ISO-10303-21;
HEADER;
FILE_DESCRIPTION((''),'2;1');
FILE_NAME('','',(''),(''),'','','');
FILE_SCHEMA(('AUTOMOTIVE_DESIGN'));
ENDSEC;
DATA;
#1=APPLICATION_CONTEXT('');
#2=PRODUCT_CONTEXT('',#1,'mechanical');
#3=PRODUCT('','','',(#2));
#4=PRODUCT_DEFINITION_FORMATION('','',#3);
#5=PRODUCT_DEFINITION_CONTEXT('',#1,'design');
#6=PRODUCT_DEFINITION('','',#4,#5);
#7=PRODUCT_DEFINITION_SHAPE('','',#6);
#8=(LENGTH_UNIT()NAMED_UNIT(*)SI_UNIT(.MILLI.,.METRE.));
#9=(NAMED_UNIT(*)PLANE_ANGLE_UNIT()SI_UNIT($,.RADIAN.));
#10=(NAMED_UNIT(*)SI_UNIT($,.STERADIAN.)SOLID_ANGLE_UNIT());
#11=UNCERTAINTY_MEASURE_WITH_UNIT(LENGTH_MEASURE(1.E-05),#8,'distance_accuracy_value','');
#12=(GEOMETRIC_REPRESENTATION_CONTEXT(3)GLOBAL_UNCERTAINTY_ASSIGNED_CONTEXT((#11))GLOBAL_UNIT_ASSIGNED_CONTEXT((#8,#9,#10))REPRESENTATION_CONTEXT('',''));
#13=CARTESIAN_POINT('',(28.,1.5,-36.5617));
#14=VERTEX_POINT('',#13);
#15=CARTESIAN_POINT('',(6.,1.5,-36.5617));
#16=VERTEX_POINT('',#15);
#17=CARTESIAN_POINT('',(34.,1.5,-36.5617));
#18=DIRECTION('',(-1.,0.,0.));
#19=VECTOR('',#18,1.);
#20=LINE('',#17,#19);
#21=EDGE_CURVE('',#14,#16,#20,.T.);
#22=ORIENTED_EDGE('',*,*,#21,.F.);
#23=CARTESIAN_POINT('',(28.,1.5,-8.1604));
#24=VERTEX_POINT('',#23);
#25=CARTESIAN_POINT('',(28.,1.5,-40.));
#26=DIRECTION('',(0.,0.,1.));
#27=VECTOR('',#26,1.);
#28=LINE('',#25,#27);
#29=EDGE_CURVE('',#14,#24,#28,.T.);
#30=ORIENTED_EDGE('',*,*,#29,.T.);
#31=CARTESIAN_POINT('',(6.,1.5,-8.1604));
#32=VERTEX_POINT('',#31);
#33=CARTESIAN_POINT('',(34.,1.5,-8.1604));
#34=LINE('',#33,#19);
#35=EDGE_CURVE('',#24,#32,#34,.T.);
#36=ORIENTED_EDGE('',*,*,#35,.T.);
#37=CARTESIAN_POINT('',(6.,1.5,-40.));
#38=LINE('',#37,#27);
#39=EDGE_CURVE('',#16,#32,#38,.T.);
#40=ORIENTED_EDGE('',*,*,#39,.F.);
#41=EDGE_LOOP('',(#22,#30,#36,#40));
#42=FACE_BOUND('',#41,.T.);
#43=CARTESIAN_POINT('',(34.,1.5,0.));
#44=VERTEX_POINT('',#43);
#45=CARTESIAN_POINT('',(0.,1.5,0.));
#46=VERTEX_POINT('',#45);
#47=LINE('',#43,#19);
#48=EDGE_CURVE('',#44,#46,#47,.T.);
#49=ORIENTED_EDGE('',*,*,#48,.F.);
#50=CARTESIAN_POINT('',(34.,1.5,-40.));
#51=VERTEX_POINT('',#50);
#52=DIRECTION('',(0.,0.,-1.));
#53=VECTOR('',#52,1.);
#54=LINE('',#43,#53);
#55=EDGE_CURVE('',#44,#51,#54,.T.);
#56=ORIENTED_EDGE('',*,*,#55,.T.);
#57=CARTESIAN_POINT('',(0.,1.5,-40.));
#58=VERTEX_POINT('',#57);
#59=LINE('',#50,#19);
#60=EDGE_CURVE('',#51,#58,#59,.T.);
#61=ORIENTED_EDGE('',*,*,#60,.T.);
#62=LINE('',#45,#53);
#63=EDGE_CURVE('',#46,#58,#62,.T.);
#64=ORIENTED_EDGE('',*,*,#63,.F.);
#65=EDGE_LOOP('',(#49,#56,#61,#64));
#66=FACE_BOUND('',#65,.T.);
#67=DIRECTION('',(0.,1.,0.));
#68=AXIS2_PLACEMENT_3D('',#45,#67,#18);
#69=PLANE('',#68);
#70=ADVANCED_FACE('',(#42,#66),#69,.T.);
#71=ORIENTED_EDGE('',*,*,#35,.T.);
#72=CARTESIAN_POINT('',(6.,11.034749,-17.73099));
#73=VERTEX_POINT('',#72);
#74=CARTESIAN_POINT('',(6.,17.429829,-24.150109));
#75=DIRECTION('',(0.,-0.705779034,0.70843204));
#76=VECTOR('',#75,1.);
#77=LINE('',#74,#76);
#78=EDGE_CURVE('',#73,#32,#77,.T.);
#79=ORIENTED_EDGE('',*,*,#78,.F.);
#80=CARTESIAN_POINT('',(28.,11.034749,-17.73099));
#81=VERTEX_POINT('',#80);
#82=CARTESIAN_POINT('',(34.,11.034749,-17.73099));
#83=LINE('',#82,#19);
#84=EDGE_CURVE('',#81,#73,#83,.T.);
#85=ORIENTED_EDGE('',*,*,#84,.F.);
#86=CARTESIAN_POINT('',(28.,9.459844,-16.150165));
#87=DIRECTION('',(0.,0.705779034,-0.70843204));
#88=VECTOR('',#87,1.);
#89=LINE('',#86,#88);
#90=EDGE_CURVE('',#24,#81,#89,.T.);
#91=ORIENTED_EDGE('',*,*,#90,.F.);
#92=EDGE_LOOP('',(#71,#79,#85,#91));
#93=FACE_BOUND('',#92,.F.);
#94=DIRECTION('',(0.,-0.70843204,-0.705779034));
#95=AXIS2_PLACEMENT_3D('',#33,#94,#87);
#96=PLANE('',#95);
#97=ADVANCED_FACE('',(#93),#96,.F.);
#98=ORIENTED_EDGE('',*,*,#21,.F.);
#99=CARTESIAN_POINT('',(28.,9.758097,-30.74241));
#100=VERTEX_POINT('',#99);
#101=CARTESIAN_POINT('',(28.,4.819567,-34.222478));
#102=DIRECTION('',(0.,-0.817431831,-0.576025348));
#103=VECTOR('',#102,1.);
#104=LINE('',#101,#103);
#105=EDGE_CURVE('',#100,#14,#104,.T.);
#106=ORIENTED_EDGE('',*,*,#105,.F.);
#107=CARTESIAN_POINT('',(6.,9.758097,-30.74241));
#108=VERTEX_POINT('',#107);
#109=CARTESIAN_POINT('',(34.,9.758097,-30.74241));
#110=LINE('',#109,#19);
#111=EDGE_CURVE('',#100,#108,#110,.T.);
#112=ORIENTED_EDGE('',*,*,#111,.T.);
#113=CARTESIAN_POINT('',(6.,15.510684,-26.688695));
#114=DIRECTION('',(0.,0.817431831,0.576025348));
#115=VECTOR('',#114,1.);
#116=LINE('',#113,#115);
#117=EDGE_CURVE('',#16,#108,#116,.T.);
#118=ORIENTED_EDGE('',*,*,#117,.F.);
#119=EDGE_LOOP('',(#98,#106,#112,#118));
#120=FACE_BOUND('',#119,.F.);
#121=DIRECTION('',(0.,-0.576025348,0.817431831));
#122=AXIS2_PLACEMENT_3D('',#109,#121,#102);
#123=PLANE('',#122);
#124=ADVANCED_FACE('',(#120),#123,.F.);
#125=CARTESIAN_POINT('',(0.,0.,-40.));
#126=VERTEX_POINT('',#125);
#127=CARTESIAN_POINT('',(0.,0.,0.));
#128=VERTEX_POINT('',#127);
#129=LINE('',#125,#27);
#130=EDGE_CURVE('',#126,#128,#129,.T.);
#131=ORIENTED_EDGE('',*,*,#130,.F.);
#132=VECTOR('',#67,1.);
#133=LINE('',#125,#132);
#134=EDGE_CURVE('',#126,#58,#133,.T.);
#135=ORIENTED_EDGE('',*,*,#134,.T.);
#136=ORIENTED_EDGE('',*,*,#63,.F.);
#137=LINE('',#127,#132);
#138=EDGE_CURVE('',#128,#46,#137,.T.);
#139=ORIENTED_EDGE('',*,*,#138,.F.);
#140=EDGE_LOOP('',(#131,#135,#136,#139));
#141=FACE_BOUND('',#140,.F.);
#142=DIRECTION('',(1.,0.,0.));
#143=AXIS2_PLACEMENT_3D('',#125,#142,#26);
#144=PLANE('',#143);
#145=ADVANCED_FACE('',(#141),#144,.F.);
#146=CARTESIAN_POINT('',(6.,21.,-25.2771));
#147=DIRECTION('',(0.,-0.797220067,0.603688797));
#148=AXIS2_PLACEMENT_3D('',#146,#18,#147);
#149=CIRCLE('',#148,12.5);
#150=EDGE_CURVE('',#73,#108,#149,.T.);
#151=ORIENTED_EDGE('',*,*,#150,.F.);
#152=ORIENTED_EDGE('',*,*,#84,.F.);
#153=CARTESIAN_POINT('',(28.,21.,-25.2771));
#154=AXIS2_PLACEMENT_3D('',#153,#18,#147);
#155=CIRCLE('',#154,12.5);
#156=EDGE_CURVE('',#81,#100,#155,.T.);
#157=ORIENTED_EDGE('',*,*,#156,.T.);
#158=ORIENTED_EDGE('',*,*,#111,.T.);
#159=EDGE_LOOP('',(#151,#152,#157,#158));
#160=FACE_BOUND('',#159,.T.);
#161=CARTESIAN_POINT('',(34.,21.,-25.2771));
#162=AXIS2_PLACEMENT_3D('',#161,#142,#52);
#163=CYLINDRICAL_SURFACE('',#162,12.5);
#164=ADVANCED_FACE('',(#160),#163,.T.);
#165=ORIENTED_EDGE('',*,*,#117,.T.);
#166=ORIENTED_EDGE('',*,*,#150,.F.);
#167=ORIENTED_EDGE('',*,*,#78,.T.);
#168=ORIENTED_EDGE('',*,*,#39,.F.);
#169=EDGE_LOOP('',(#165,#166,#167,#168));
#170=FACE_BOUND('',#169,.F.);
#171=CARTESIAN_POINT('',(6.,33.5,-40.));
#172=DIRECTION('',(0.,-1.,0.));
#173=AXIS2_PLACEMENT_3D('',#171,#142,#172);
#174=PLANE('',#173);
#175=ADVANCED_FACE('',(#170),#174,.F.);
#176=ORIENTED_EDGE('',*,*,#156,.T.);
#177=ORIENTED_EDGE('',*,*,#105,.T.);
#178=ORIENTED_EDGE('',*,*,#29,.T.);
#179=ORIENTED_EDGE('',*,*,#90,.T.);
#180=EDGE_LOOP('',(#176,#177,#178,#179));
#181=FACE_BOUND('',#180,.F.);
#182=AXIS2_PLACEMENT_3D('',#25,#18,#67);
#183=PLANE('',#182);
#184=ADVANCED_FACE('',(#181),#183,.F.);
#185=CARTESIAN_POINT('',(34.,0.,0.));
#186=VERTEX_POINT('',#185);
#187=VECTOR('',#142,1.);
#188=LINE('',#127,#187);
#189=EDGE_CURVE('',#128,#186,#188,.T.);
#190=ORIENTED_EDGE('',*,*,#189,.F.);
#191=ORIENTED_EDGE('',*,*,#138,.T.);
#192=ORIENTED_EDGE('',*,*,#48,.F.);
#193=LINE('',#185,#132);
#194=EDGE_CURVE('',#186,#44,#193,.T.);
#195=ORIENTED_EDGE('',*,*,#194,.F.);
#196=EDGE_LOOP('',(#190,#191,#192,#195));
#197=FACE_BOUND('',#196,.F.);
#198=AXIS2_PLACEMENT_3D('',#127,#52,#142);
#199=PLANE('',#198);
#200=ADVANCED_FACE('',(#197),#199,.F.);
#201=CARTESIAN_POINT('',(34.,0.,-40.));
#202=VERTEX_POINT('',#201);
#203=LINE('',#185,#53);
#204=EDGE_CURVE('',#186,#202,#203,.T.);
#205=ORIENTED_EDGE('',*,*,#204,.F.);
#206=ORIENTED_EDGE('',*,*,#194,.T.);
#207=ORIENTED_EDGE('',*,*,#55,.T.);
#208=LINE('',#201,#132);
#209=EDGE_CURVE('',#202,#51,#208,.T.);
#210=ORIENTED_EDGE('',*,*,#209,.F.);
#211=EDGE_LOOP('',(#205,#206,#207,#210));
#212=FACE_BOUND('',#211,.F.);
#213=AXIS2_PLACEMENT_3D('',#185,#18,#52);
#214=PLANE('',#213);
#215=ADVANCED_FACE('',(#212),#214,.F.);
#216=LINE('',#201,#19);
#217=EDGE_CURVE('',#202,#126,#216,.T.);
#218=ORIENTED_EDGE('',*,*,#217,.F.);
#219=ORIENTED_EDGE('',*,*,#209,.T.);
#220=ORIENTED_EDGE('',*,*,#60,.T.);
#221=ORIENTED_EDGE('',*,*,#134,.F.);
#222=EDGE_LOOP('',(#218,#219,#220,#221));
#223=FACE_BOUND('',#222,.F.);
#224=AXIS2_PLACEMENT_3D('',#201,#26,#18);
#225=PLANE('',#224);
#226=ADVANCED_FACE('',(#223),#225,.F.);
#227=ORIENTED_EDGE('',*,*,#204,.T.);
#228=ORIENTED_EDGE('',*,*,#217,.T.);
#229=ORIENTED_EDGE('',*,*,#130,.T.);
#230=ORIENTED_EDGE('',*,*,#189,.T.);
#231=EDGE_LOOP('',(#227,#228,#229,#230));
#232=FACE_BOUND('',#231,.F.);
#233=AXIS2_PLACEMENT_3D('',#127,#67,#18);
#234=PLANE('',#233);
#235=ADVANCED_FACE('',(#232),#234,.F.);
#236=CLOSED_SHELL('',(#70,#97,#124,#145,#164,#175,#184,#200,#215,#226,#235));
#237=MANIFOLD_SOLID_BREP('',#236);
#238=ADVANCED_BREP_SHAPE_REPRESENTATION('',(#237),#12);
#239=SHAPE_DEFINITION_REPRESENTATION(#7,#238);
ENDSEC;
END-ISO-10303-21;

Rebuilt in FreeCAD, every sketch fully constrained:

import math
import FreeCAD as App
import Part
import Sketcher
Q = App.Units.Quantity


def add_polygon(sketch, points):
    """Adds a closed chain of lines whose ends are joined by coincident constraints."""
    first, n = sketch.GeometryCount, len(points)
    for a, b in zip(points, points[1:] + points[:1]):
        sketch.addGeometry(Part.LineSegment(App.Vector(*a, 0), App.Vector(*b, 0)), False)
    for i in range(n):
        sketch.addConstraint(Sketcher.Constraint("Coincident", first + i, 2, first + (i + 1) % n, 1))

doc = App.newDocument("Part")
body = doc.addObject("PartDesign::Body", "Body")

sketch1 = body.newObject("Sketcher::SketchObject", "Sketch")
sketch1.AttachmentSupport = (doc.getObject("XZ_Plane"), [""])
sketch1.MapMode = "FlatFace"
add_polygon(sketch1, [(0, -40), (0, 0), (34, 0), (34, -40)])
sketch1.addConstraint(Sketcher.Constraint("Vertical", 0))
sketch1.addConstraint(Sketcher.Constraint("Horizontal", 1))
sketch1.addConstraint(Sketcher.Constraint("Vertical", 2))
sketch1.addConstraint(Sketcher.Constraint("Horizontal", 3))
sketch1.addConstraint(Sketcher.Constraint("Coincident", 0, 2, -1, 1))
sketch1.addConstraint(Sketcher.Constraint("DistanceX", 1, 1, 1, 2, Q("34 mm")))
sketch1.addConstraint(Sketcher.Constraint("DistanceY", 0, 1, 0, 2, Q("40 mm")))
pad1 = body.newObject("PartDesign::Pad", "Pad")
pad1.Profile = sketch1
pad1.Length = 1.5
pad1.Reversed = True

sketch2 = body.newObject("Sketcher::SketchObject", "Sketch001")
sketch2.AttachmentSupport = (doc.getObject("YZ_Plane"), [""])
sketch2.MapMode = "FlatFace"
sketch2.AttachmentOffset = App.Placement(App.Vector(0, 0, 34), App.Rotation())
sketch2.addGeometry(Part.LineSegment(App.Vector(11.034749, -17.73099, 0), App.Vector(1.5, -8.1604, 0)), False)
sketch2.addGeometry(Part.LineSegment(App.Vector(1.5, -8.1604, 0), App.Vector(1.5, -36.5617, 0)), False)
sketch2.addGeometry(Part.LineSegment(App.Vector(1.5, -36.5617, 0), App.Vector(9.758097, -30.74241, 0)), False)
sketch2.addGeometry(Part.ArcOfCircle(Part.Circle(App.Vector(21, -25.2771, 0), App.Vector(0, 0, 1), 12.5), math.radians(-154.073055), math.radians(142.865452)), False)
sketch2.addConstraint(Sketcher.Constraint("Coincident", 0, 2, 1, 1))
sketch2.addConstraint(Sketcher.Constraint("Coincident", 1, 2, 2, 1))
sketch2.addConstraint(Sketcher.Constraint("Coincident", 2, 2, 3, 1))
sketch2.addConstraint(Sketcher.Constraint("Coincident", 3, 2, 0, 1))
sketch2.addConstraint(Sketcher.Constraint("Vertical", 1))
sketch2.addConstraint(Sketcher.Constraint("Radius", 3, Q("12.5 mm")))
sketch2.addConstraint(Sketcher.Constraint("DistanceX", -1, 1, 3, 3, Q("21 mm")))
sketch2.addConstraint(Sketcher.Constraint("DistanceX", -1, 1, 0, 2, Q("1.5 mm")))
sketch2.addConstraint(Sketcher.Constraint("DistanceY", 1, 2, 1, 1, Q("28.4013 mm")))
sketch2.addConstraint(Sketcher.Constraint("DistanceY", 3, 3, -1, 1, Q("25.277 mm")))
sketch2.addConstraint(Sketcher.Constraint("DistanceX", -1, 1, 2, 2, Q("9.758 mm")))
sketch2.addConstraint(Sketcher.Constraint("DistanceY", 3, 2, -1, 1, Q("17.731 mm")))
sketch2.addConstraint(Sketcher.Constraint("DistanceY", 2, 2, 0, 2, Q("22.582 mm")))
pad2 = body.newObject("PartDesign::Pad", "Pad001")
pad2.Profile = sketch2
pad2.Length = 34
pad2.Reversed = True

sketch3 = body.newObject("Sketcher::SketchObject", "Sketch002")
sketch3.AttachmentSupport = (doc.getObject("XY_Plane"), [""])
sketch3.MapMode = "FlatFace"
sketch3.AttachmentOffset = App.Placement(App.Vector(0, 0, -40), App.Rotation())
add_polygon(sketch3, [(6, 1.5), (0, 1.5), (0, 33.5), (6, 33.5)])
add_polygon(sketch3, [(34, 1.5), (28, 1.5), (28, 33.5), (34, 33.5)])
sketch3.addConstraint(Sketcher.Constraint("Horizontal", 0))
sketch3.addConstraint(Sketcher.Constraint("Vertical", 1))
sketch3.addConstraint(Sketcher.Constraint("Horizontal", 2))
sketch3.addConstraint(Sketcher.Constraint("Vertical", 3))
sketch3.addConstraint(Sketcher.Constraint("Horizontal", 4))
sketch3.addConstraint(Sketcher.Constraint("Vertical", 5))
sketch3.addConstraint(Sketcher.Constraint("Horizontal", 6))
sketch3.addConstraint(Sketcher.Constraint("Vertical", 7))
sketch3.addConstraint(Sketcher.Constraint("PointOnObject", 0, 2, -2))
sketch3.addConstraint(Sketcher.Constraint("Horizontal", 3, 2, 4, 2))
sketch3.addConstraint(Sketcher.Constraint("Horizontal", 2, 2, 5, 2))
sketch3.addConstraint(Sketcher.Constraint("Equal", 2, 4))
sketch3.addConstraint(Sketcher.Constraint("DistanceX", 0, 2, 0, 1, Q("6 mm")))
sketch3.addConstraint(Sketcher.Constraint("DistanceY", 1, 1, 1, 2, Q("32 mm")))
sketch3.addConstraint(Sketcher.Constraint("DistanceX", -1, 1, 4, 2, Q("28 mm")))
sketch3.addConstraint(Sketcher.Constraint("DistanceY", -1, 1, 0, 2, Q("1.5 mm")))
pocket1 = body.newObject("PartDesign::Pocket", "Pocket")
pocket1.Profile = sketch3
pocket1.Type = "ThroughAll"
pocket1.Reversed = True

doc.recompute()
